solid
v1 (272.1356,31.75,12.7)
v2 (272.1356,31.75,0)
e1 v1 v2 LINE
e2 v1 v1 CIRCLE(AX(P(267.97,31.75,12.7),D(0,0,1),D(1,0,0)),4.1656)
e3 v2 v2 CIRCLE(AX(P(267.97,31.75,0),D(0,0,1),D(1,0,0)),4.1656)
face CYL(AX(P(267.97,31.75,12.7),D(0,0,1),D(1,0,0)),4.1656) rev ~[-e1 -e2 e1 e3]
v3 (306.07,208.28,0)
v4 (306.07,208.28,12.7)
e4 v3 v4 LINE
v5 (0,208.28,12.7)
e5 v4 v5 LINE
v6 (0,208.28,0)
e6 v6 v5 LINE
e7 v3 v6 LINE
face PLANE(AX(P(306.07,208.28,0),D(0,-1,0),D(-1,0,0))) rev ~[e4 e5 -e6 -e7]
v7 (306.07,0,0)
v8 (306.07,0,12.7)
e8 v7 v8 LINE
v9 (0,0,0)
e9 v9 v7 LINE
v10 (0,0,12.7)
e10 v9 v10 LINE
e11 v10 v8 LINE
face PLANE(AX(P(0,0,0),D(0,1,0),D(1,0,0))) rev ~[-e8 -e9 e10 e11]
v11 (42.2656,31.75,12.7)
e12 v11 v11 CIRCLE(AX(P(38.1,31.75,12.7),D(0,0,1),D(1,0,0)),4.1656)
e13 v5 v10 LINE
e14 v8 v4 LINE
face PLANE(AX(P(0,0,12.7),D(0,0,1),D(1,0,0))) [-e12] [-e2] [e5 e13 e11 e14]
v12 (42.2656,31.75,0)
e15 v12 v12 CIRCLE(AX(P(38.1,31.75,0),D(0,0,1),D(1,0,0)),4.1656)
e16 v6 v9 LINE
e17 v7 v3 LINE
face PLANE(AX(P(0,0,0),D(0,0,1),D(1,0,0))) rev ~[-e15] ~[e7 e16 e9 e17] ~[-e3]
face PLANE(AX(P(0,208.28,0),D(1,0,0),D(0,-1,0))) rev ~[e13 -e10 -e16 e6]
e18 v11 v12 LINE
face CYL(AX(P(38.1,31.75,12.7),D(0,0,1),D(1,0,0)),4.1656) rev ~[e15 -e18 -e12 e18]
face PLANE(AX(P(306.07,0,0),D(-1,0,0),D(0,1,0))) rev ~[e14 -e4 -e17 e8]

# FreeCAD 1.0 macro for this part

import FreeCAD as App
import Part
import Sketcher

V = App.Vector
Q = App.Units.Quantity


def add_polygon(sketch, points):
    """Adds a closed chain of lines whose ends are joined by coincident constraints."""
    first, n = sketch.GeometryCount, len(points)
    for a, b in zip(points, points[1:] + points[:1]):
        sketch.addGeometry(Part.LineSegment(App.Vector(*a, 0), App.Vector(*b, 0)), False)
    for i in range(n):
        sketch.addConstraint(Sketcher.Constraint("Coincident", first + i, 2, first + (i + 1) % n, 1))

doc = App.newDocument("Part")
body = doc.addObject("PartDesign::Body", "Body")

# Sketch on XY plane
sketch1 = doc.addObject("Sketcher::SketchObject", "Sketch")
body.addObject(sketch1)
sketch1.AttachmentSupport = (doc.XY_Plane, [""])
sketch1.MapMode = "FlatFace"
add_polygon(sketch1, [(0, 208), (0, 0), (306, 0), (306, 208)])  # lines 0-3
sketch1.addConstraint([
    Sketcher.Constraint("Vertical", 0),
    Sketcher.Constraint("Horizontal", 1),
    Sketcher.Constraint("Vertical", 2),
    Sketcher.Constraint("Horizontal", 3),
    Sketcher.Constraint("Coincident", 0, 2, -1, 1),
    Sketcher.Constraint("DistanceY", 0, 2, 0, 1, Q("8.2 in")),
    Sketcher.Constraint("DistanceX", 1, 1, 1, 2, Q("12.05 in")),
])
pad1 = doc.addObject("PartDesign::Pad", "Pad")
body.addObject(pad1)
pad1.Profile = sketch1
pad1.Length = Q("0.5 in")

# Sketch on XY plane
sketch2 = doc.addObject("Sketcher::SketchObject", "Sketch001")
body.addObject(sketch2)
sketch2.AttachmentSupport = (doc.XY_Plane, [""])
sketch2.MapMode = "FlatFace"
sketch2.AttachmentOffset = App.Placement(V(0, 0, 0.5 * 25.4), App.Rotation())
sketch2.addGeometry([
    Part.Circle(V(38.1, 31.8, 0), V(0, 0, 1), 4.2),
    Part.Circle(V(268, 31.8, 0), V(0, 0, 1), 4.2),
], False)
sketch2.addConstraint([
    Sketcher.Constraint("Equal", 0, 1),
    Sketcher.Constraint("Horizontal", 0, 3, 1, 3),
    Sketcher.Constraint("Diameter", 0, Q("0.328 in")),
    Sketcher.Constraint("DistanceX", -1, 1, 0, 3, Q("1.5 in")),
    Sketcher.Constraint("DistanceY", -1, 1, 0, 3, Q("1.25 in")),
    Sketcher.Constraint("DistanceX", -1, 1, 1, 3, Q("10.55 in")),
])
pocket1 = doc.addObject("PartDesign::Pocket", "Pocket")
body.addObject(pocket1)
pocket1.Profile = sketch2
pocket1.Length = Q("1 in")

doc.recompute()
